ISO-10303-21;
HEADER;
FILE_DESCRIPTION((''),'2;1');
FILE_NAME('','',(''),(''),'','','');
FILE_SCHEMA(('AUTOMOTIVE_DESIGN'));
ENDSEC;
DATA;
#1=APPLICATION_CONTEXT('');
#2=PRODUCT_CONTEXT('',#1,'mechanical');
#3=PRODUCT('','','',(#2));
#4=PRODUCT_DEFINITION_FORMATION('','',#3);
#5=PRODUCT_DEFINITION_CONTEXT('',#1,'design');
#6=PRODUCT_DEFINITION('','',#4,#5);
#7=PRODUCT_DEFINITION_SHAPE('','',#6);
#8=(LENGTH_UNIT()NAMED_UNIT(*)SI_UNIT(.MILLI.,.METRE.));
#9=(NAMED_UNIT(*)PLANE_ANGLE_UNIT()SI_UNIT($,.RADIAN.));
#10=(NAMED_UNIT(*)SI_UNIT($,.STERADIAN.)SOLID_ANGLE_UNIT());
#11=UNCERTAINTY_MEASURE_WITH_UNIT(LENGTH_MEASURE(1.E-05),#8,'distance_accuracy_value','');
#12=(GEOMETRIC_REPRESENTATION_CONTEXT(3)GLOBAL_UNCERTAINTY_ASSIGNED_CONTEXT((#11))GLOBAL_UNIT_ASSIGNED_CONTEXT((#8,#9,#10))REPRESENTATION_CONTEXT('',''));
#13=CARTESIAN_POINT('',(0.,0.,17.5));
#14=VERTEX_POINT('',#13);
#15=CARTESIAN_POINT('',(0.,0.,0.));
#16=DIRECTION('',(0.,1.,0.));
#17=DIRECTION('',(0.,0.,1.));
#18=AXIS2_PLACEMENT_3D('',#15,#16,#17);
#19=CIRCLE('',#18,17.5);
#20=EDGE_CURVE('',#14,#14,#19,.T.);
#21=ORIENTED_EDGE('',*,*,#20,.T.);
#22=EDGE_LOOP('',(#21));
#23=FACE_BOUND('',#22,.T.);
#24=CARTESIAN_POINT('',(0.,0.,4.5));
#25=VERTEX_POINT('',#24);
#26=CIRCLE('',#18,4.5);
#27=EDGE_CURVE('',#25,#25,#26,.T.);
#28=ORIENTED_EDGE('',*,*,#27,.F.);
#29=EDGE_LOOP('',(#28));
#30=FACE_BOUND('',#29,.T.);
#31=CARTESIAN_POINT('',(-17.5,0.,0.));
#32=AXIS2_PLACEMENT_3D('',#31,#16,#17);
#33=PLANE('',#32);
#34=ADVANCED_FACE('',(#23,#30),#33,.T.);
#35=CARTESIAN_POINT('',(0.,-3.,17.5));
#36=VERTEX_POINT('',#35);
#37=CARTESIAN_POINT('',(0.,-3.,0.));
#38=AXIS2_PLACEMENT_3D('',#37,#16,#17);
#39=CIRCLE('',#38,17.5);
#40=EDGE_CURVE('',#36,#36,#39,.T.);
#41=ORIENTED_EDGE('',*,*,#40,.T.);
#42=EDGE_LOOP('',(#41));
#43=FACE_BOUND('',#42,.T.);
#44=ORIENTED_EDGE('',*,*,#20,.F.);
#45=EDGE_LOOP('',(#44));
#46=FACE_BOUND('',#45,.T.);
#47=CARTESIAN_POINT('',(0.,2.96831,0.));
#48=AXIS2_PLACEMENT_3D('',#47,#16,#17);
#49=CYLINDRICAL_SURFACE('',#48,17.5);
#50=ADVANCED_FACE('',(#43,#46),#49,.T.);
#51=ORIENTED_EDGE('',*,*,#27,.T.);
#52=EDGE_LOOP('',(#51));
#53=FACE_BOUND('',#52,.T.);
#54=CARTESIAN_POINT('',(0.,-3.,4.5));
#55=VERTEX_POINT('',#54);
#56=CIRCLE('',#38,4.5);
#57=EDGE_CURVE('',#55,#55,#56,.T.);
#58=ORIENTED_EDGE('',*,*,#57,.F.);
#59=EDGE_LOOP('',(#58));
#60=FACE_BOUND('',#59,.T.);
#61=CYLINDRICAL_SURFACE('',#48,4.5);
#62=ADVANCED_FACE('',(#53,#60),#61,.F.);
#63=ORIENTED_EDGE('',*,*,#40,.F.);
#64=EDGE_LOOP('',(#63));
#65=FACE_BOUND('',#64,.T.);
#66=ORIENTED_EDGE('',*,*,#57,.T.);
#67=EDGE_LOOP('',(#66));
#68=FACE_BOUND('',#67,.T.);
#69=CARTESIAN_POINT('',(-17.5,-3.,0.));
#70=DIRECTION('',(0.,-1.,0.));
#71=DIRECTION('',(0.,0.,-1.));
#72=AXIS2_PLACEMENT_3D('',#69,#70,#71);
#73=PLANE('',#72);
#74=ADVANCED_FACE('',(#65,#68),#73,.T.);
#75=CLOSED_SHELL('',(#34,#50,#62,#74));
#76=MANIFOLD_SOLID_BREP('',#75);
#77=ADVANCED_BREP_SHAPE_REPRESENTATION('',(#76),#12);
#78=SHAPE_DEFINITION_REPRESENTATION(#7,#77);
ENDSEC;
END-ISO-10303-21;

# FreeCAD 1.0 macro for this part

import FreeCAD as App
import Part
import Sketcher
from FreeCAD import Vector
Q = App.Units.Quantity


def add_polygon(sketch, points):
    """Adds a closed chain of lines whose ends are joined by coincident constraints."""
    first, n = sketch.GeometryCount, len(points)
    for a, b in zip(points, points[1:] + points[:1]):
        sketch.addGeometry(Part.LineSegment(App.Vector(*a, 0), App.Vector(*b, 0)), False)
    for i in range(n):
        sketch.addConstraint(Sketcher.Constraint("Coincident", first + i, 2, first + (i + 1) % n, 1))

doc = App.newDocument("Part")
body = doc.addObject("PartDesign::Body", "Body")

sketch1 = body.newObject("Sketcher::SketchObject", "Sketch")
sketch1.AttachmentSupport = (doc.getObject("XY_Plane"), [""])
sketch1.MapMode = "FlatFace"
add_polygon(sketch1, [(-17.5, 0), (-17.5, -3), (-4.5, -3), (-4.5, 0)])
sketch1.addConstraint(Sketcher.Constraint("Vertical", 0))
sketch1.addConstraint(Sketcher.Constraint("Horizontal", 1))
sketch1.addConstraint(Sketcher.Constraint("Vertical", 2))
sketch1.addConstraint(Sketcher.Constraint("Horizontal", 3))
sketch1.addConstraint(Sketcher.Constraint("PointOnObject", 2, 2, -1))
sketch1.addConstraint(Sketcher.Constraint("DistanceX", 1, 1, 1, 2, Q("13 mm")))
sketch1.addConstraint(Sketcher.Constraint("DistanceY", 0, 2, 0, 1, Q("3 mm")))
sketch1.addConstraint(Sketcher.Constraint("DistanceX", 0, 2, -1, 1, Q("17.5 mm")))
revolution = body.newObject("PartDesign::Revolution", "Revolution")
revolution.Profile = sketch1
revolution.ReferenceAxis = (sketch1, ["V_Axis"])
revolution.Angle = 360

doc.recompute()
